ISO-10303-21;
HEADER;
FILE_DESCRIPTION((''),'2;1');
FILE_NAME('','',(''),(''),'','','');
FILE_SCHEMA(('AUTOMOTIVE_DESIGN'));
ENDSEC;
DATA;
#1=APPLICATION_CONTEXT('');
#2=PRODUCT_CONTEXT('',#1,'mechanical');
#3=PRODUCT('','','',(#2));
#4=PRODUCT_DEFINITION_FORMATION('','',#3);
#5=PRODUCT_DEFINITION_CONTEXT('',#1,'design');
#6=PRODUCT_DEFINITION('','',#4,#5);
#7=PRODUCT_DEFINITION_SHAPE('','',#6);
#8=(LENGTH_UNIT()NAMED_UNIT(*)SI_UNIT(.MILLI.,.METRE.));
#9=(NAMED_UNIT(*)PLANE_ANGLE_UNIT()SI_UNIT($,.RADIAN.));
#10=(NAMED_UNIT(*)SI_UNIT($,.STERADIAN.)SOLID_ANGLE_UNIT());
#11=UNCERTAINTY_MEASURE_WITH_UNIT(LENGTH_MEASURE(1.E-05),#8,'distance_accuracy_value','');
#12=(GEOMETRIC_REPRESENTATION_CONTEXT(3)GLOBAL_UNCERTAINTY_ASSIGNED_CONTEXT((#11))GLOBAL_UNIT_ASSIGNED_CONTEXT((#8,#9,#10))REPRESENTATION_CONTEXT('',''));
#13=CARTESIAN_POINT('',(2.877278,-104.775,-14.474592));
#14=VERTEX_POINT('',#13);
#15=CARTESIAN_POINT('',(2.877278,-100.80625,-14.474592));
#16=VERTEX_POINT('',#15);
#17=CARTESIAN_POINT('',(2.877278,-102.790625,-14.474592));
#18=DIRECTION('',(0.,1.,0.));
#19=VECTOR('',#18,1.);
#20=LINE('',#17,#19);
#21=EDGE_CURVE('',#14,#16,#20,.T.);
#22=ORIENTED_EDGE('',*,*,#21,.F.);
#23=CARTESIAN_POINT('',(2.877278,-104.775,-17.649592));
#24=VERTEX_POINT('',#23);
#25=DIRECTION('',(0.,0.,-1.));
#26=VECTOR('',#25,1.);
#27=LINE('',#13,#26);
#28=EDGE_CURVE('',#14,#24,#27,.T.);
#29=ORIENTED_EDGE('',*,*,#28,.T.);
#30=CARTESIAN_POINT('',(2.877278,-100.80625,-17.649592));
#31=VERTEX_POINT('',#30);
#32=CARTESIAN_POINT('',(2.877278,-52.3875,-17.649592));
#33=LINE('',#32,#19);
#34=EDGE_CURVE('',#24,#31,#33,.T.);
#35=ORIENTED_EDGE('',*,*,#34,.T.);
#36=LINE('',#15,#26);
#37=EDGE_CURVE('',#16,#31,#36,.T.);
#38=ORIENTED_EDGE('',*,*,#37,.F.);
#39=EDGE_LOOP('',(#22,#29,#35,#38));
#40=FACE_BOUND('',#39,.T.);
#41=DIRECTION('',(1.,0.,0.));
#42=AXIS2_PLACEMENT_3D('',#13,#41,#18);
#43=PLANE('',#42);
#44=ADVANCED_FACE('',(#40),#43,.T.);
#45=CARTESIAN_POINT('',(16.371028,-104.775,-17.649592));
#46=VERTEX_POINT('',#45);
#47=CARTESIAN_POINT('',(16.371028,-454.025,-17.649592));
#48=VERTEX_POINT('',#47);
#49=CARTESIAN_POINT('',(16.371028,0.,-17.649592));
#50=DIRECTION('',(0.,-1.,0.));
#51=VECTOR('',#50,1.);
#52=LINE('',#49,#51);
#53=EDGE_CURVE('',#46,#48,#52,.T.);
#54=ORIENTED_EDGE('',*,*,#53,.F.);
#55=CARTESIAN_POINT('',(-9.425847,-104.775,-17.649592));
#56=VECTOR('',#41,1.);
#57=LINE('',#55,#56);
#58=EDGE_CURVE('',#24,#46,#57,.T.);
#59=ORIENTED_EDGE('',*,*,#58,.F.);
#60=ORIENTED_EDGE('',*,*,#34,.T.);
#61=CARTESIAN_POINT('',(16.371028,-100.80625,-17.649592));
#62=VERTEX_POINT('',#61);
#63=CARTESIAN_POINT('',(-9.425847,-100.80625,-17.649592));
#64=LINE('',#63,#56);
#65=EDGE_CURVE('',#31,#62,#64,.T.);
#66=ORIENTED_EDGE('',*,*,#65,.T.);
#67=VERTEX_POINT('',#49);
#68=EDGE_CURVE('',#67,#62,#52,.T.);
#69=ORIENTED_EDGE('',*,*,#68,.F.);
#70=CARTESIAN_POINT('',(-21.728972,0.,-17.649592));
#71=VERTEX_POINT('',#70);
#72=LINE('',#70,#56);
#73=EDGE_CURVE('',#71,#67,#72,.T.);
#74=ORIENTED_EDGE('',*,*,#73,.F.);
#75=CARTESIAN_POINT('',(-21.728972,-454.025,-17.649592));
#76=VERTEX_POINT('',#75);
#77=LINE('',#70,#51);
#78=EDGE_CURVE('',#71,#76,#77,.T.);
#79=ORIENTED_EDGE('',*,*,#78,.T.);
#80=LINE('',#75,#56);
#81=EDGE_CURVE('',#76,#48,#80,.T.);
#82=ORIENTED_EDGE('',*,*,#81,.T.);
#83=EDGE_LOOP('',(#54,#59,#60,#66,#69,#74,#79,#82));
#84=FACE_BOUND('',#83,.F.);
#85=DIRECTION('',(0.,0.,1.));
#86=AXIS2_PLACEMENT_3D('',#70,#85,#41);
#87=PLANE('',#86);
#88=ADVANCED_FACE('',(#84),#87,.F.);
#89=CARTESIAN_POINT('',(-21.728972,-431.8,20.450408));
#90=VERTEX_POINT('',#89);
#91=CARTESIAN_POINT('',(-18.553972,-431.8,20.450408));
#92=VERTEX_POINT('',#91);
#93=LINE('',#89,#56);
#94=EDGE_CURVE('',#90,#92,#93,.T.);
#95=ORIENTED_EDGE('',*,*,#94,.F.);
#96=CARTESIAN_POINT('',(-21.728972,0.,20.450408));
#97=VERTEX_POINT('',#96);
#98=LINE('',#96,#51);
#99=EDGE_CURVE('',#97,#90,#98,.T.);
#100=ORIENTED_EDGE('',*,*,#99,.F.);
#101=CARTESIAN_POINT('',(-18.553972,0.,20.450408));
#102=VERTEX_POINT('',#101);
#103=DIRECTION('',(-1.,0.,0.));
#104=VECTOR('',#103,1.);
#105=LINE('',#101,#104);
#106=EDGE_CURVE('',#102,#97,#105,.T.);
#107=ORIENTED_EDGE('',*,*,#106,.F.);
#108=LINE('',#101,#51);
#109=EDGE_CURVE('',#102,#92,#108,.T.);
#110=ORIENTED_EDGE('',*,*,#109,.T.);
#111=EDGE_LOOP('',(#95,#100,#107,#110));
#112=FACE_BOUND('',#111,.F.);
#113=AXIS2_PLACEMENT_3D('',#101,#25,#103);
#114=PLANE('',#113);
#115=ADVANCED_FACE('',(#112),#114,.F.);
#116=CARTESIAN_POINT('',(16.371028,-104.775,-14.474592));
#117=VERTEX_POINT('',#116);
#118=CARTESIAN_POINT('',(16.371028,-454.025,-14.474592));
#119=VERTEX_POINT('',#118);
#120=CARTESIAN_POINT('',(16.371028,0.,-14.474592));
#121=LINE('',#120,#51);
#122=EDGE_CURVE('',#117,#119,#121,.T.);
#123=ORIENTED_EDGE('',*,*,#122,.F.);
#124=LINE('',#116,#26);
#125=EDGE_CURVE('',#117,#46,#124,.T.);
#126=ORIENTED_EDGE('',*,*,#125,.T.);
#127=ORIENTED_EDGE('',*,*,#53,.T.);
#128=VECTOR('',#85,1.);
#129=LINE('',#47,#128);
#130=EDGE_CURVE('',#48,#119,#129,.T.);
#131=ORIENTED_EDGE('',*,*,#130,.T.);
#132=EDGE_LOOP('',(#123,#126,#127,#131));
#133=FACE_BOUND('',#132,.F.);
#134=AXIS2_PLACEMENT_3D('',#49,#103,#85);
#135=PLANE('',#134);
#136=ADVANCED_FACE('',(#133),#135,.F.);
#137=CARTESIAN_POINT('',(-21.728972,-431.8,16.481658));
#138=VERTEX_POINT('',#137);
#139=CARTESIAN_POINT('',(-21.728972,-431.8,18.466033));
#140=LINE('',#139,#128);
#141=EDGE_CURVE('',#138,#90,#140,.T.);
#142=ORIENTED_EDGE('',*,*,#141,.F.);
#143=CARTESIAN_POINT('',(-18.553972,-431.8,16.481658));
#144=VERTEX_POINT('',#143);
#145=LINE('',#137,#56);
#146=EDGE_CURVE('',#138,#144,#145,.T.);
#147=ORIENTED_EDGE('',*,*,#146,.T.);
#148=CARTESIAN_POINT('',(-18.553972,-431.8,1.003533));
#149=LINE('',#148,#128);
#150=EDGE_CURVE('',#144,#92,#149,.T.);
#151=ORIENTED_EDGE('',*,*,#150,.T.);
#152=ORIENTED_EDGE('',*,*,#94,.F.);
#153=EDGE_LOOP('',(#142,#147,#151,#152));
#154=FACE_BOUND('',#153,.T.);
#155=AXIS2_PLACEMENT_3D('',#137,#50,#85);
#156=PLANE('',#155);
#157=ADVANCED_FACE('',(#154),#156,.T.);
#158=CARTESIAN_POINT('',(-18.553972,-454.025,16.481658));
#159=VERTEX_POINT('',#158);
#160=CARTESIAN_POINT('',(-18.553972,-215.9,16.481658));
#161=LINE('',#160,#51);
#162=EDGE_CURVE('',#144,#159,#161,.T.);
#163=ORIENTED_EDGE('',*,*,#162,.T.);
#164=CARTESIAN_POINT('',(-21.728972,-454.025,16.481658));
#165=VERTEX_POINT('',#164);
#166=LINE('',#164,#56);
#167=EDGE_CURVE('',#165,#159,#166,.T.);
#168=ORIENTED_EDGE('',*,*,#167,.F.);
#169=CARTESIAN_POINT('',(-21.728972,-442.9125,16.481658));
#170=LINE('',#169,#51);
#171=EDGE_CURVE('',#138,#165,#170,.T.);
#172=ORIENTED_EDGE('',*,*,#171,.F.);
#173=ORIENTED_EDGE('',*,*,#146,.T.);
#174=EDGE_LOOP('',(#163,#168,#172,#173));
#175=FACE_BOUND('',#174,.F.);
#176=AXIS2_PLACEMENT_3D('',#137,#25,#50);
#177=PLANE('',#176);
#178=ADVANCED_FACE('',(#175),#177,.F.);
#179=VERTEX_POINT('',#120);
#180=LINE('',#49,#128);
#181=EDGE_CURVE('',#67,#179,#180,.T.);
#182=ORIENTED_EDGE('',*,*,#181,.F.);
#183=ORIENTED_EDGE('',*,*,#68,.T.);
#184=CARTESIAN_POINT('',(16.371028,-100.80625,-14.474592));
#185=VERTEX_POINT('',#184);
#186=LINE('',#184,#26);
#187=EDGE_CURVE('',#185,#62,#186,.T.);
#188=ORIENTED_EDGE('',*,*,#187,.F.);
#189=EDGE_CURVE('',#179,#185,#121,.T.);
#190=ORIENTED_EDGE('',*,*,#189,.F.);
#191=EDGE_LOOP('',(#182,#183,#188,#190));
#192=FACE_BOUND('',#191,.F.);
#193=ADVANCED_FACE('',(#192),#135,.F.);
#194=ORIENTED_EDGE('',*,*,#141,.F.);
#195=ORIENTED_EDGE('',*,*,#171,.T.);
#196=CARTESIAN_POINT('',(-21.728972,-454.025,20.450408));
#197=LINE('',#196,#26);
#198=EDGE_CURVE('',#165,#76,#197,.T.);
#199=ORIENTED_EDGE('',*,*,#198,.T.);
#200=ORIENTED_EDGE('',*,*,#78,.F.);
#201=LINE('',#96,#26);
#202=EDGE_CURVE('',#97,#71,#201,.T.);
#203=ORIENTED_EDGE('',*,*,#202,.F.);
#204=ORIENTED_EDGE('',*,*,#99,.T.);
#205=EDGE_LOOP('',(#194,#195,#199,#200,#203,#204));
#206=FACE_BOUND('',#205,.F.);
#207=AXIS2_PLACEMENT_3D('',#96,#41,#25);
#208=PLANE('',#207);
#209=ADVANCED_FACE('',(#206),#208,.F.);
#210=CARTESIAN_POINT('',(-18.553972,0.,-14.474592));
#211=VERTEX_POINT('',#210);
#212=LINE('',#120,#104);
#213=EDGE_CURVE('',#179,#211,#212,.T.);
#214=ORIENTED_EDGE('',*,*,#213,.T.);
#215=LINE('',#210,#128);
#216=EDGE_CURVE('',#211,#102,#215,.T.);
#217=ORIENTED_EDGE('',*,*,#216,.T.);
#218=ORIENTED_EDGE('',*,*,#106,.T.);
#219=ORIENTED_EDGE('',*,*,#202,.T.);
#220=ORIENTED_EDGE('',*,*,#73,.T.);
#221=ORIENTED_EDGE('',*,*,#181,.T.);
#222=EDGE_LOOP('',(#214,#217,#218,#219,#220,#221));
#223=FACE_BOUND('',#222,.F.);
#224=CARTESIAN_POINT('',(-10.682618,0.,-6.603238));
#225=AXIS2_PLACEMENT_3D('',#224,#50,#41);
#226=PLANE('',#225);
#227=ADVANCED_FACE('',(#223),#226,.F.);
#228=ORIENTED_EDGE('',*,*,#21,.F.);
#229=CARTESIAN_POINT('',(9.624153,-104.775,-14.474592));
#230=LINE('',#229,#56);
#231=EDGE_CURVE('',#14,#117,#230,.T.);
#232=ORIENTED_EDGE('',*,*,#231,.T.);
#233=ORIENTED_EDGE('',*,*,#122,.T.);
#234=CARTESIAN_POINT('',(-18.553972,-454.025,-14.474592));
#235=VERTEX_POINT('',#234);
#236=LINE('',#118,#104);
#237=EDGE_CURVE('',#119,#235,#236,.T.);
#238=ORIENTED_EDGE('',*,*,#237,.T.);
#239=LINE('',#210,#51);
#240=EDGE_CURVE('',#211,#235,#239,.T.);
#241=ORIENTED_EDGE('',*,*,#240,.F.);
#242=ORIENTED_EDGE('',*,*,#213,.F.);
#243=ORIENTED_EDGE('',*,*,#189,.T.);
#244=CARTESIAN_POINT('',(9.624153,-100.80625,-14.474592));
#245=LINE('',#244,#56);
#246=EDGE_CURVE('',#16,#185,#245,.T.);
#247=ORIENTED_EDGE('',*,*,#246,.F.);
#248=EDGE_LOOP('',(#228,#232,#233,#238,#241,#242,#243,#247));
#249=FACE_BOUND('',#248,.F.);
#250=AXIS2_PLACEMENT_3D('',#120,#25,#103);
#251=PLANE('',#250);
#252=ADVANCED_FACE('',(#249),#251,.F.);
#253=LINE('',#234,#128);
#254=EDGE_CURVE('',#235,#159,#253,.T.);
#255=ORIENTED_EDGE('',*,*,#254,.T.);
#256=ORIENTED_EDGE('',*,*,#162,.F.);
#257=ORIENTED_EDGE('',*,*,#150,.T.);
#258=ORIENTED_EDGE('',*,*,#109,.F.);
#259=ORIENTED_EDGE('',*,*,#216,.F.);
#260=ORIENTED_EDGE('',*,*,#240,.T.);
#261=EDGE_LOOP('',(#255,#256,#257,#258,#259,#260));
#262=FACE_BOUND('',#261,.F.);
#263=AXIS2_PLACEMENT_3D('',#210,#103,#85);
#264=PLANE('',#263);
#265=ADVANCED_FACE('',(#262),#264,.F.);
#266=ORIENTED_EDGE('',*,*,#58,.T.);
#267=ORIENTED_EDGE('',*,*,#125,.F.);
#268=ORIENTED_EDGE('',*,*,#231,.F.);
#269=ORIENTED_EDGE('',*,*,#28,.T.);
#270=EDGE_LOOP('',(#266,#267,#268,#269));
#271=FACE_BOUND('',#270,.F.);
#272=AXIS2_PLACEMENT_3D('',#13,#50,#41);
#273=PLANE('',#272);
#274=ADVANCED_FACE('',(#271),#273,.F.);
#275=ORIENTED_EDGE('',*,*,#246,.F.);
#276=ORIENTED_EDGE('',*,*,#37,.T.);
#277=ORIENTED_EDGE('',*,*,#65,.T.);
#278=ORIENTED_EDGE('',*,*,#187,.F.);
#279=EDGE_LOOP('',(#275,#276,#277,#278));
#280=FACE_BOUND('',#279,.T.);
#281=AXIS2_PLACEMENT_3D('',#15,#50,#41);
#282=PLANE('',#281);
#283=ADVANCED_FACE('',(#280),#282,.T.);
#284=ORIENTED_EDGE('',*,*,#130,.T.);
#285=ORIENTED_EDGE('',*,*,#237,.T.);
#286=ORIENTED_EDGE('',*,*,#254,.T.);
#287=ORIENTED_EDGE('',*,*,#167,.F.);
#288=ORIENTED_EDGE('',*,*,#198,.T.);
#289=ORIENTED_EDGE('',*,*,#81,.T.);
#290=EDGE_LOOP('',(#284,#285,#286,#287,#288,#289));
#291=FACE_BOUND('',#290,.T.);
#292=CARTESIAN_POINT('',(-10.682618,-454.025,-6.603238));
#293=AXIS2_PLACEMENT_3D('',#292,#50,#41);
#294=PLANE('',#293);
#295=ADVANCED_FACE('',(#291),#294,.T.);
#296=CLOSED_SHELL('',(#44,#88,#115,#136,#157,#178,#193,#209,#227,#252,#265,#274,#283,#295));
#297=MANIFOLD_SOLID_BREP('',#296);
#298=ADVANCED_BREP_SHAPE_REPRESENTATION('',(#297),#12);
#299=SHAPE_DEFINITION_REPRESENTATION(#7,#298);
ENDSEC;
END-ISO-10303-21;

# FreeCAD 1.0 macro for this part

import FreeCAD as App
import Part
import Sketcher
Q = App.Units.Quantity


def add_polygon(sketch, points):
    """Adds a closed chain of lines whose ends are joined by coincident constraints."""
    first, n = sketch.GeometryCount, len(points)
    for a, b in zip(points, points[1:] + points[:1]):
        sketch.addGeometry(Part.LineSegment(App.Vector(*a, 0), App.Vector(*b, 0)), False)
    for i in range(n):
        sketch.addConstraint(Sketcher.Constraint("Coincident", first + i, 2, first + (i + 1) % n, 1))

doc = App.newDocument("Part")
body = doc.addObject("PartDesign::Body", "Body")

# Sketch on XZ plane
sketch1 = body.newObject("Sketcher::SketchObject", "Sketch")
sketch1.AttachmentSupport = (doc.getObject("XZ_Plane"), [""])
sketch1.MapMode = "FlatFace"
add_polygon(sketch1, [(-18.553972, 20.450408), (-21.728972, 20.450408), (-21.728972, -17.649592), (16.371028, -17.649592), (16.371028, -14.474592), (-18.553972, -14.474592)])  # lines 0-5
sketch1.addConstraint([
    Sketcher.Constraint("Horizontal", 0),
    Sketcher.Constraint("Vertical", 1),
    Sketcher.Constraint("Horizontal", 2),
    Sketcher.Constraint("Vertical", 3),
    Sketcher.Constraint("Horizontal", 4),
    Sketcher.Constraint("Vertical", 5),
    Sketcher.Constraint("Equal", 2, 1),
    Sketcher.Constraint("Equal", 0, 3),
    Sketcher.Constraint("DistanceX", 2, 1, 2, 2, Q("1.5 in")),
    Sketcher.Constraint("DistanceX", 0, 2, 0, 1, Q("0.125 in")),
    Sketcher.Constraint("DistanceX", 0, 2, -1, 1, Q("21.728972 mm")),
    Sketcher.Constraint("DistanceY", 1, 2, -1, 1, Q("17.649592 mm")),
])
pad1 = body.newObject("PartDesign::Pad", "Pad")
pad1.Profile = sketch1
pad1.Length = Q("17.875 in")

# Sketch on YZ plane
sketch2 = body.newObject("Sketcher::SketchObject", "Sketch001")
sketch2.AttachmentSupport = (doc.getObject("YZ_Plane"), [""])
sketch2.MapMode = "FlatFace"
sketch2.AttachmentOffset = App.Placement(App.Vector(0, 0, -21.728972), App.Rotation())
add_polygon(sketch2, [(-431.8, 20.450408), (-431.8, 16.481658), (-454.025, 16.481658), (-454.025, 20.450408)])  # lines 0-3
sketch2.addConstraint([
    Sketcher.Constraint("Vertical", 0),
    Sketcher.Constraint("Horizontal", 1),
    Sketcher.Constraint("Vertical", 2),
    Sketcher.Constraint("Horizontal", 3),
    Sketcher.Constraint("DistanceX", 0, 2, -1, 1, Q("17 in")),
    Sketcher.Constraint("DistanceX", 1, 2, 1, 1, Q("0.875 in")),
    Sketcher.Constraint("DistanceY", 0, 2, 0, 1, Q("0.15625 in")),
    Sketcher.Constraint("DistanceY", -1, 1, 0, 2, Q("16.481658 mm")),
])
pocket1 = body.newObject("PartDesign::Pocket", "Pocket")
pocket1.Profile = sketch2
pocket1.Length = Q("1 in")
pocket1.Reversed = True

# Sketch on XY plane
sketch3 = body.newObject("Sketcher::SketchObject", "Sketch002")
sketch3.AttachmentSupport = (doc.getObject("XY_Plane"), [""])
sketch3.MapMode = "FlatFace"
sketch3.AttachmentOffset = App.Placement(App.Vector(0, 0, -14.474592), App.Rotation())
add_polygon(sketch3, [(2.877278, -100.80625), (2.877278, -104.775), (16.371028, -104.775), (16.371028, -100.80625)])  # lines 0-3
sketch3.addConstraint([
    Sketcher.Constraint("Vertical", 0),
    Sketcher.Constraint("Horizontal", 1),
    Sketcher.Constraint("Vertical", 2),
    Sketcher.Constraint("Horizontal", 3),
    Sketcher.Constraint("DistanceX", 1, 1, 1, 2, Q("0.53125 in")),
    Sketcher.Constraint("DistanceY", 0, 2, 0, 1, Q("0.15625 in")),
    Sketcher.Constraint("DistanceY", 0, 2, -1, 1, Q("4.125 in")),
    Sketcher.Constraint("DistanceX", -1, 1, 0, 2, Q("2.877278 mm")),
])
pocket2 = body.newObject("PartDesign::Pocket", "Pocket001")
pocket2.Profile = sketch3
pocket2.Length = Q("1 in")

doc.recompute()
